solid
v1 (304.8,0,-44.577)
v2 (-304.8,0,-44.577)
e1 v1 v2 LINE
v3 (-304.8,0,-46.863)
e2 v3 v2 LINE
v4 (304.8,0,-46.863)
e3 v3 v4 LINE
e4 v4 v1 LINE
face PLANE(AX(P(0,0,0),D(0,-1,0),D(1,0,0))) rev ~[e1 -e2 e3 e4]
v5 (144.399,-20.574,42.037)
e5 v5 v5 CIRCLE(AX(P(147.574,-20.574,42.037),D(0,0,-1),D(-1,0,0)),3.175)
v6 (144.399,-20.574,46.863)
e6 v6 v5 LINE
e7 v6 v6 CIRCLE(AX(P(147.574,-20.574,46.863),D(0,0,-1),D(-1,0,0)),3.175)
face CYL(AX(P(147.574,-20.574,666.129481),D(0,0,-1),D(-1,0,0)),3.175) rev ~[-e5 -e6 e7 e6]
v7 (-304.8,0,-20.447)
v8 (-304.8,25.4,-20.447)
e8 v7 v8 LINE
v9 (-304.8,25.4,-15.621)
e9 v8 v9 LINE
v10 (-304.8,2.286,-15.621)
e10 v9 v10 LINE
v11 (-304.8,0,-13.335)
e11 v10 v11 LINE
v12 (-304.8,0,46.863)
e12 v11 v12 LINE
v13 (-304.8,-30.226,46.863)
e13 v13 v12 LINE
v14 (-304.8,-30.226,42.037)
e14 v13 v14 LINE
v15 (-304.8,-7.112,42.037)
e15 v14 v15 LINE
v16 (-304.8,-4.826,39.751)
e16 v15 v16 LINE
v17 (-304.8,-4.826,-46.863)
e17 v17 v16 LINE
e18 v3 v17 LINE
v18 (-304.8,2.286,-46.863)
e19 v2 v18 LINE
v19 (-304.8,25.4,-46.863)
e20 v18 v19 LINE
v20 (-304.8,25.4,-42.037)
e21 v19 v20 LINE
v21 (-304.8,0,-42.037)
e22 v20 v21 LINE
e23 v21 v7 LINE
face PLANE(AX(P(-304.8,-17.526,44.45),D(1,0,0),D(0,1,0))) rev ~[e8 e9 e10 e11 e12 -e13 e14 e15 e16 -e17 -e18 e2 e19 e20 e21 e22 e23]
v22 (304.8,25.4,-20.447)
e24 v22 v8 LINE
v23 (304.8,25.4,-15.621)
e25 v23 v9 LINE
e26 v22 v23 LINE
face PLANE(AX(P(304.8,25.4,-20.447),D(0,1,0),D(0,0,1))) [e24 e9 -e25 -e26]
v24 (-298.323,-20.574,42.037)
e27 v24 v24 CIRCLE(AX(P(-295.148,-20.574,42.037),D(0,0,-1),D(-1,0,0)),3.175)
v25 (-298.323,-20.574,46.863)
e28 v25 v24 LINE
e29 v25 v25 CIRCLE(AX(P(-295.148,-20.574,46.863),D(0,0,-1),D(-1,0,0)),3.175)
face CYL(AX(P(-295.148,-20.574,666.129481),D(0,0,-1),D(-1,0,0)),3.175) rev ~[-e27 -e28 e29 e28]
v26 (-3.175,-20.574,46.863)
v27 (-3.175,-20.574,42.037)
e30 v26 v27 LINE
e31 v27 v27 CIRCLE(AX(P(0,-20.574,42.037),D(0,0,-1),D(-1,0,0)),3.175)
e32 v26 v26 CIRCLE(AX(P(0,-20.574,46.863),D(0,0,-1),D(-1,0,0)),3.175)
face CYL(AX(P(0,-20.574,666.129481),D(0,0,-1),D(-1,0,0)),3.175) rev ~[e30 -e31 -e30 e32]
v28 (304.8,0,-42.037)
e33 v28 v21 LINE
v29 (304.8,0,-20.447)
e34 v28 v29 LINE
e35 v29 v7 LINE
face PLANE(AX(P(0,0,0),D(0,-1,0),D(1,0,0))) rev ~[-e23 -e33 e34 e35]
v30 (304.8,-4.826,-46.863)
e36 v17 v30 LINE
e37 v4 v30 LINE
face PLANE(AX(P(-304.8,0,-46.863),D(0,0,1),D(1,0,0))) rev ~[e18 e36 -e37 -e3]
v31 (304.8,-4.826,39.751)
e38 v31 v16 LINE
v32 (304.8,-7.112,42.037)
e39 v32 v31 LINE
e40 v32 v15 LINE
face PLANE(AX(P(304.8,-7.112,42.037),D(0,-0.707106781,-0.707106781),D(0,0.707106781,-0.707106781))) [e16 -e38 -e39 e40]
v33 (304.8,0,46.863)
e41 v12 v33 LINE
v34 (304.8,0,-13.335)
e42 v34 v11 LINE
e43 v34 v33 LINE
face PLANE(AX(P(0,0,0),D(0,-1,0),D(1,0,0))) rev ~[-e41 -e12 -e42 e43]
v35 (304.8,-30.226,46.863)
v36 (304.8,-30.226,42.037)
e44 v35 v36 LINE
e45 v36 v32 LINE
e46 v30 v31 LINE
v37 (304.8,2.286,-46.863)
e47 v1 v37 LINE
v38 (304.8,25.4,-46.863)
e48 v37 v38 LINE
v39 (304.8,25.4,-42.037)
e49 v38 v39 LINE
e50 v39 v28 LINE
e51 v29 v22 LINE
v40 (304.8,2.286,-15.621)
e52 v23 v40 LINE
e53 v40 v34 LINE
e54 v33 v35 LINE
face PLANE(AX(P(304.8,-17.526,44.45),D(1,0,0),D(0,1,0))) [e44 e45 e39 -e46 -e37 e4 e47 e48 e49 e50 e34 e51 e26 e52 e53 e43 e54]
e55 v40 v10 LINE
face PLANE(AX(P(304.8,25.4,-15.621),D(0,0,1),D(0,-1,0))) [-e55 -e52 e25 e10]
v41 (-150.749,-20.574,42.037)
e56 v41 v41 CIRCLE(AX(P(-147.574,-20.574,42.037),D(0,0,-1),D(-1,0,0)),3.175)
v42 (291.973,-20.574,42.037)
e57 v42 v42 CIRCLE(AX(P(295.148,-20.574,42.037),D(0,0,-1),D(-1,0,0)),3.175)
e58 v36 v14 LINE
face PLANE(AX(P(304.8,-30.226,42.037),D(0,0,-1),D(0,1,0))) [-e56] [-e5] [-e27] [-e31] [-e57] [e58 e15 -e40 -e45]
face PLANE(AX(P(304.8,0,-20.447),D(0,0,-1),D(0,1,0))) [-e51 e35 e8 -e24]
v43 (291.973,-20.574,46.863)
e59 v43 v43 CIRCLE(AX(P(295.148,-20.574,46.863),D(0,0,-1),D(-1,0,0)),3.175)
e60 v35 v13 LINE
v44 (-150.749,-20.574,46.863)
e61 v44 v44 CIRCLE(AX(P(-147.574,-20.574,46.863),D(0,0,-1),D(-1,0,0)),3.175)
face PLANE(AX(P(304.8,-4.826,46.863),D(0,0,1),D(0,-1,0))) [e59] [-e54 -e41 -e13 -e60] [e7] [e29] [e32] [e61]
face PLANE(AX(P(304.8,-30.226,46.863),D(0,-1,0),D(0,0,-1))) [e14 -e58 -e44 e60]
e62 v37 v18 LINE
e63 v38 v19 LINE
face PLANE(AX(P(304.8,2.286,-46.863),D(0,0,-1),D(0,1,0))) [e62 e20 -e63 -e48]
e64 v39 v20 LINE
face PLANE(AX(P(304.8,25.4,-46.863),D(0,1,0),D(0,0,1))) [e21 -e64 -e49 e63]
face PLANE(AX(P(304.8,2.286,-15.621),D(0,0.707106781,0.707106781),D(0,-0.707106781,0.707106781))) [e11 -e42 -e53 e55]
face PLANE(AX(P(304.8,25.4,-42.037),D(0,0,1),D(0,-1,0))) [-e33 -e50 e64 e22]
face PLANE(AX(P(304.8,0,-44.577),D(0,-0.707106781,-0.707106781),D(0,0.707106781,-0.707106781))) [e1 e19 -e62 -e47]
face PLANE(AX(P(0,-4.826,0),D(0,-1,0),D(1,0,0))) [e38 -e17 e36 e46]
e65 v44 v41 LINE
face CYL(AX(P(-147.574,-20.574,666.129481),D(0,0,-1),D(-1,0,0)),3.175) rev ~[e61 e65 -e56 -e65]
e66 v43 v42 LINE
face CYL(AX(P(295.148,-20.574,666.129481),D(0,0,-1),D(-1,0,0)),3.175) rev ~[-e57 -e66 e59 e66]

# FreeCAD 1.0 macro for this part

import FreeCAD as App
import Part
import Sketcher
Q = App.Units.Quantity

doc = App.newDocument("Part")
body = doc.addObject("PartDesign::Body", "Body")

# Sketch on XZ plane
sketch1 = doc.addObject("Sketcher::SketchObject", "Sketch")
body.addObject(sketch1)
sketch1.AttachmentSupport = (doc.XZ_Plane, [""])
sketch1.MapMode = "FlatFace"
sketch1.addGeometry([
    Part.LineSegment(App.Vector(-305, 47, 0), App.Vector(-305, -47, 0)),
    Part.LineSegment(App.Vector(-305, -47, 0), App.Vector(305, -47, 0)),
    Part.LineSegment(App.Vector(305, -47, 0), App.Vector(305, 47, 0)),
    Part.LineSegment(App.Vector(305, 47, 0), App.Vector(-305, 47, 0)),
], False)
sketch1.addConstraint([
    Sketcher.Constraint("Coincident", 0, 2, 1, 1),
    Sketcher.Constraint("Coincident", 1, 2, 2, 1),
    Sketcher.Constraint("Coincident", 2, 2, 3, 1),
    Sketcher.Constraint("Coincident", 3, 2, 0, 1),
    Sketcher.Constraint("Vertical", 0),
    Sketcher.Constraint("Horizontal", 1),
    Sketcher.Constraint("Vertical", 2),
    Sketcher.Constraint("Horizontal", 3),
    Sketcher.Constraint("Symmetric", 0, 2, 2, 2, -1, 1),
    Sketcher.Constraint("DistanceX", 1, 1, 1, 2, Q("24 in")),
    Sketcher.Constraint("DistanceY", 0, 2, 0, 1, Q("3.69 in")),
])
pad1 = doc.addObject("PartDesign::Pad", "Pad")
body.addObject(pad1)
pad1.Profile = sketch1
pad1.Length = Q("0.19 in")

# Sketch on YZ plane
sketch2 = doc.addObject("Sketcher::SketchObject", "Sketch001")
body.addObject(sketch2)
sketch2.AttachmentSupport = (doc.YZ_Plane, [""])
sketch2.MapMode = "FlatFace"
sketch2.AttachmentOffset = App.Placement(App.Vector(0, 0, 12 * 25.4), App.Rotation())
sketch2.addGeometry([
    Part.LineSegment(App.Vector(0, -13.3, 0), App.Vector(0, -20.4, 0)),  # 0
    Part.LineSegment(App.Vector(0, -20.4, 0), App.Vector(25.4, -20.4, 0)),  # 1
    Part.LineSegment(App.Vector(25.4, -20.4, 0), App.Vector(25.4, -15.6, 0)),  # 2
    Part.LineSegment(App.Vector(25.4, -15.6, 0), App.Vector(2.3, -15.6, 0)),  # 3
    Part.LineSegment(App.Vector(2.3, -15.6, 0), App.Vector(0, -13.3, 0)),  # 4
    Part.LineSegment(App.Vector(-30.2, 42, 0), App.Vector(-7.1, 42, 0)),  # 5
    Part.LineSegment(App.Vector(-7.1, 42, 0), App.Vector(-4.8, 39.8, 0)),  # 6
    Part.LineSegment(App.Vector(-4.8, 39.8, 0), App.Vector(-4.8, 46.9, 0)),  # 7
    Part.LineSegment(App.Vector(-4.8, 46.9, 0), App.Vector(-30.2, 46.9, 0)),  # 8
    Part.LineSegment(App.Vector(-30.2, 46.9, 0), App.Vector(-30.2, 42, 0)),  # 9
    Part.LineSegment(App.Vector(0, -44.6, 0), App.Vector(2.3, -46.9, 0)),  # 10
    Part.LineSegment(App.Vector(2.3, -46.9, 0), App.Vector(25.4, -46.9, 0)),  # 11
    Part.LineSegment(App.Vector(25.4, -46.9, 0), App.Vector(25.4, -42, 0)),  # 12
    Part.LineSegment(App.Vector(25.4, -42, 0), App.Vector(0, -42, 0)),  # 13
    Part.LineSegment(App.Vector(0, -42, 0), App.Vector(0, -44.6, 0)),  # 14
], False)
sketch2.addConstraint([
    Sketcher.Constraint("Coincident", 0, 2, 1, 1),
    Sketcher.Constraint("Coincident", 1, 2, 2, 1),
    Sketcher.Constraint("Coincident", 2, 2, 3, 1),
    Sketcher.Constraint("Coincident", 3, 2, 4, 1),
    Sketcher.Constraint("Coincident", 4, 2, 0, 1),
    Sketcher.Constraint("Coincident", 5, 2, 6, 1),
    Sketcher.Constraint("Coincident", 6, 2, 7, 1),
    Sketcher.Constraint("Coincident", 7, 2, 8, 1),
    Sketcher.Constraint("Coincident", 8, 2, 9, 1),
    Sketcher.Constraint("Coincident", 9, 2, 5, 1),
    Sketcher.Constraint("Coincident", 10, 2, 11, 1),
    Sketcher.Constraint("Coincident", 11, 2, 12, 1),
    Sketcher.Constraint("Coincident", 12, 2, 13, 1),
    Sketcher.Constraint("Coincident", 13, 2, 14, 1),
    Sketcher.Constraint("Coincident", 14, 2, 10, 1),
    Sketcher.Constraint("Vertical", 0),
    Sketcher.Constraint("Horizontal", 1),
    Sketcher.Constraint("Vertical", 2),
    Sketcher.Constraint("Horizontal", 3),
    Sketcher.Constraint("Horizontal", 5),
    Sketcher.Constraint("Vertical", 7),
    Sketcher.Constraint("Horizontal", 8),
    Sketcher.Constraint("Vertical", 9),
    Sketcher.Constraint("Horizontal", 11),
    Sketcher.Constraint("Vertical", 12),
    Sketcher.Constraint("Horizontal", 13),
    Sketcher.Constraint("Vertical", 14),
    Sketcher.Constraint("PointOnObject", 0, 2, -2),
    Sketcher.Constraint("PointOnObject", 13, 2, -2),
    Sketcher.Constraint("Parallel", 4, 6),
    Sketcher.Constraint("Parallel", 6, 10),
    Sketcher.Constraint("Vertical", 3, 2, 10, 2),
    Sketcher.Constraint("Vertical", 2, 2, 11, 2),
    Sketcher.Constraint("Equal", 3, 5),
    Sketcher.Constraint("Equal", 1, 8),
    Sketcher.Constraint("Equal", 0, 7),
    Sketcher.Constraint("Equal", 9, 12),
    Sketcher.Constraint("DistanceX", 1, 1, 1, 2, Q("1 in")),
    Sketcher.Constraint("DistanceY", 14, 2, 14, 1, Q("0.1 in")),
    Sketcher.Constraint("Angle", 4, Q("135 deg")),
    Sketcher.Constraint("DistanceX", 3, 2, 3, 1, Q("0.91 in")),
    Sketcher.Constraint("DistanceX", 5, 2, -1, 1, Q("0.28 in")),
    Sketcher.Constraint("DistanceY", 4, 2, 5, 2, Q("2.18 in")),
    Sketcher.Constraint("DistanceY", 10, 2, 0, 2, Q("1.04 in")),
    Sketcher.Constraint("DistanceY", 0, 2, -1, 1, Q("0.805 in")),
])
pad2 = doc.addObject("PartDesign::Pad", "Pad001")
body.addObject(pad2)
pad2.Profile = sketch2
pad2.Length = Q("24 in")
pad2.Reversed = True

# Sketch on XY plane
sketch3 = doc.addObject("Sketcher::SketchObject", "Sketch002")
body.addObject(sketch3)
sketch3.AttachmentSupport = (doc.XY_Plane, [""])
sketch3.MapMode = "FlatFace"
sketch3.AttachmentOffset = App.Placement(App.Vector(0, 0, 1.845 * 25.4), App.Rotation())
sketch3.addGeometry([
    Part.Circle(App.Vector(-295.1, -20.6, 0), App.Vector(0, 0, 1), 3.2),  # 0
    Part.Circle(App.Vector(-147.6, -20.6, 0), App.Vector(0, 0, 1), 3.2),  # 1
    Part.Circle(App.Vector(0, -20.6, 0), App.Vector(0, 0, 1), 3.2),  # 2
    Part.Circle(App.Vector(147.6, -20.6, 0), App.Vector(0, 0, 1), 3.2),  # 3
    Part.Circle(App.Vector(295.1, -20.6, 0), App.Vector(0, 0, 1), 3.2),  # 4
], False)
sketch3.addConstraint([
    Sketcher.Constraint("Equal", 0, 1),
    Sketcher.Constraint("Equal", 1, 2),
    Sketcher.Constraint("Equal", 2, 3),
    Sketcher.Constraint("Equal", 3, 4),
    Sketcher.Constraint("Symmetric", 1, 3, 3, 3, -2),
    Sketcher.Constraint("Symmetric", 0, 3, 4, 3, -2),
    Sketcher.Constraint("PointOnObject", 2, 3, -2),
    Sketcher.Constraint("Horizontal", 0, 3, 1, 3),
    Sketcher.Constraint("Horizontal", 1, 3, 2, 3),
    Sketcher.Constraint("Diameter", 0, Q("0.25 in")),
    Sketcher.Constraint("DistanceX", 0, 3, -1, 1, Q("11.62 in")),
    Sketcher.Constraint("DistanceY", 0, 3, -1, 1, Q("0.81 in")),
    Sketcher.Constraint("DistanceX", 1, 3, -1, 1, Q("5.81 in")),
])
doc.recompute()
hole = doc.addObject("PartDesign::Hole", "Hole")
body.addObject(hole)
hole.Profile = sketch3
hole.ThreadType = "None"
hole.Diameter = Q("0.25 in")
hole.DepthType = "ThroughAll"

doc.recompute()
